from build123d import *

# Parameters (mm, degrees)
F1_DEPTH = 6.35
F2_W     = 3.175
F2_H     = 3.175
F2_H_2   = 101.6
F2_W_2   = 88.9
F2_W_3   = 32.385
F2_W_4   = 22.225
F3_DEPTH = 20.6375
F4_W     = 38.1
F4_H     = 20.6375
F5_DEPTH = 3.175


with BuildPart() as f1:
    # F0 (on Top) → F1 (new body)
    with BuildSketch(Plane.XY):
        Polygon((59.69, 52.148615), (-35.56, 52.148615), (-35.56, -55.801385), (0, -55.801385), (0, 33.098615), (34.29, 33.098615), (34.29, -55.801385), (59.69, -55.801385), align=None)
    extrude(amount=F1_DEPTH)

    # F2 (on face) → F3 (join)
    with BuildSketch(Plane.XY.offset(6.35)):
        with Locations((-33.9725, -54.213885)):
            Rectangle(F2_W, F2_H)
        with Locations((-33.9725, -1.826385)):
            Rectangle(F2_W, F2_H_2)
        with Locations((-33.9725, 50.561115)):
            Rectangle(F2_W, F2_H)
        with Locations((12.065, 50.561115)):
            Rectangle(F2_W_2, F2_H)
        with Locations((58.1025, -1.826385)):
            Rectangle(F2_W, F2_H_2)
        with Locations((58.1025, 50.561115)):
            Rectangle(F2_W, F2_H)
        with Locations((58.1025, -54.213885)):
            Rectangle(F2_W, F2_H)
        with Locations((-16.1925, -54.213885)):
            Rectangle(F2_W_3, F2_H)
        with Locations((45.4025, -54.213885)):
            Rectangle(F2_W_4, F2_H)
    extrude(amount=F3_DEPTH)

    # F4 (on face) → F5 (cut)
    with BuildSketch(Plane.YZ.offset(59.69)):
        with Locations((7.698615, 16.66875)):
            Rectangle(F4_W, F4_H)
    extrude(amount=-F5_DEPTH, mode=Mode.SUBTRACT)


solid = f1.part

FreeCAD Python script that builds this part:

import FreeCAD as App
import Part
import Sketcher

V = App.Vector
Q = App.Units.Quantity


def add_polygon(sketch, points):
    """Adds a closed chain of lines whose ends are joined by coincident constraints."""
    first, n = sketch.GeometryCount, len(points)
    for a, b in zip(points, points[1:] + points[:1]):
        sketch.addGeometry(Part.LineSegment(App.Vector(*a, 0), App.Vector(*b, 0)), False)
    for i in range(n):
        sketch.addConstraint(Sketcher.Constraint("Coincident", first + i, 2, first + (i + 1) % n, 1))

doc = App.newDocument("Part")
params = doc.addObject("Spreadsheet::Sheet", "Params")
for row, (alias, value) in enumerate([
    ("sketch1_width", "1 in"),
    ("sketch1_width2", "1.4 in"),
    ("sketch1_height", "3.5 in"),
    ("sketch1_width3", "3.75 in"),
    ("sketch1_height2", "4.25 in"),
    ("pad1_length", "0.25 in"),
    ("sketch2_width", "1 in"),
    ("sketch2_height", "4 in"),
    ("sketch2_width2", "1.4 in"),
    ("sketch2_width3", "3.5 in"),
    ("sketch2_width4", "3.75 in"),
    ("pad2_length", "0.8125 in"),
    ("sketch3_width", "1.5 in"),
    ("sketch3_height", "0.8125 in"),
    ("pocket1_length", "0.125 in"),
], start=1):
    params.set(f"A{row}", alias)
    params.set(f"B{row}", "=" + value)
    params.setAlias(f"B{row}", alias)

body = doc.addObject("PartDesign::Body", "Body")

# Sketch on XY plane
sketch1 = body.newObject("Sketcher::SketchObject", "Sketch")
sketch1.AttachmentSupport = (doc.getObject("XY_Plane"), [""])
sketch1.MapMode = "FlatFace"
add_polygon(sketch1, [(60, 52), (-36, 52), (-36, -56), (0, -56), (0, 33), (34, 33), (34, -56), (60, -56)])  # lines 0-7
sketch1.addConstraint([
    Sketcher.Constraint("Horizontal", 0),
    Sketcher.Constraint("Vertical", 1),
    Sketcher.Constraint("Horizontal", 2),
    Sketcher.Constraint("Vertical", 3),
    Sketcher.Constraint("Horizontal", 4),
    Sketcher.Constraint("Vertical", 5),
    Sketcher.Constraint("Horizontal", 6),
    Sketcher.Constraint("Vertical", 7),
    Sketcher.Constraint("PointOnObject", 2, 2, -2),
    Sketcher.Constraint("Horizontal", 2, 2, 5, 2),
    Sketcher.Constraint("DistanceX", 6, 1, 6, 2, Q("1 in")),
    Sketcher.Constraint("DistanceX", 2, 1, 2, 2, Q("1.4 in")),
    Sketcher.Constraint("DistanceY", 3, 1, 3, 2, Q("3.5 in")),
    Sketcher.Constraint("DistanceX", 0, 2, 0, 1, Q("3.75 in")),
    Sketcher.Constraint("DistanceY", 1, 2, 1, 1, Q("4.25 in")),
    Sketcher.Constraint("DistanceY", -1, 1, 0, 2, 52.148615),
])
sketch1.setExpression("Constraints[18]", "Params.sketch1_width")
sketch1.setExpression("Constraints[19]", "Params.sketch1_width2")
sketch1.setExpression("Constraints[20]", "Params.sketch1_height")
sketch1.setExpression("Constraints[21]", "Params.sketch1_width3")
sketch1.setExpression("Constraints[22]", "Params.sketch1_height2")
pad1 = body.newObject("PartDesign::Pad", "Pad")
pad1.Profile = sketch1
pad1.setExpression("Length", "Params.pad1_length")

# Sketch on XY plane
sketch2 = body.newObject("Sketcher::SketchObject", "Sketch001")
sketch2.AttachmentSupport = (doc.getObject("XY_Plane"), [""])
sketch2.MapMode = "FlatFace"
sketch2.AttachmentOffset = App.Placement(V(0, 0, 0.25 * 25.4), App.Rotation())
add_polygon(sketch2, [(-35.6, -55.8), (0, -55.8), (0, -52.6), (-32.4, -52.6), (-32.4, 49), (56.5, 49), (56.5, -52.6), (34.3, -52.6), (34.3, -55.8), (59.7, -55.8), (59.7, 52.1), (-35.6, 52.1)])  # lines 0-11
sketch2.addConstraint([
    Sketcher.Constraint("Horizontal", 0),
    Sketcher.Constraint("Vertical", 1),
    Sketcher.Constraint("Horizontal", 2),
    Sketcher.Constraint("Vertical", 3),
    Sketcher.Constraint("Horizontal", 4),
    Sketcher.Constraint("Vertical", 5),
    Sketcher.Constraint("Horizontal", 6),
    Sketcher.Constraint("Vertical", 7),
    Sketcher.Constraint("Horizontal", 8),
    Sketcher.Constraint("Vertical", 9),
    Sketcher.Constraint("Horizontal", 10),
    Sketcher.Constraint("Vertical", 11),
    Sketcher.Constraint("PointOnObject", 0, 2, -2),
    Sketcher.Constraint("Horizontal", 2, 2, 5, 2),
    Sketcher.Constraint("Horizontal", 0, 2, 7, 2),
    Sketcher.Constraint("DistanceX", 8, 1, 8, 2, Q("1 in")),
    Sketcher.Constraint("DistanceY", 3, 1, 3, 2, Q("4 in")),
    Sketcher.Constraint("DistanceX", 0, 1, 0, 2, Q("1.4 in")),
    Sketcher.Constraint("DistanceX", 4, 1, 4, 2, Q("3.5 in")),
    Sketcher.Constraint("DistanceX", 10, 2, 10, 1, Q("3.75 in")),
    Sketcher.Constraint("DistanceY", 9, 1, 9, 2, Q("4.25 in")),
    Sketcher.Constraint("DistanceX", 2, 2, 2, 1, Q("1.275 in")),
    Sketcher.Constraint("DistanceY", 1, 1, 1, 2, Q("0.125 in")),
    Sketcher.Constraint("DistanceY", 0, 2, -1, 1, 55.801385),
])
sketch2.setExpression("Constraints[27]", "Params.sketch2_width")
sketch2.setExpression("Constraints[28]", "Params.sketch2_height")
sketch2.setExpression("Constraints[29]", "Params.sketch2_width2")
sketch2.setExpression("Constraints[30]", "Params.sketch2_width3")
sketch2.setExpression("Constraints[31]", "Params.sketch2_width4")
pad2 = body.newObject("PartDesign::Pad", "Pad001")
pad2.Profile = sketch2
pad2.setExpression("Length", "Params.pad2_length")

# Sketch on YZ plane
sketch3 = body.newObject("Sketcher::SketchObject", "Sketch002")
sketch3.AttachmentSupport = (doc.getObject("YZ_Plane"), [""])
sketch3.MapMode = "FlatFace"
sketch3.AttachmentOffset = App.Placement(V(0, 0, 2.35 * 25.4), App.Rotation())
add_polygon(sketch3, [(-11, 27), (-11, 6), (27, 6), (27, 27)])  # lines 0-3
sketch3.addConstraint([
    Sketcher.Constraint("Vertical", 0),
    Sketcher.Constraint("Horizontal", 1),
    Sketcher.Constraint("Vertical", 2),
    Sketcher.Constraint("Horizontal", 3),
    Sketcher.Constraint("DistanceX", 1, 1, 1, 2, Q("1.5 in")),
    Sketcher.Constraint("DistanceY", 0, 2, 0, 1, Q("0.8125 in")),
    Sketcher.Constraint("DistanceY", -1, 1, 0, 2, Q("0.25 in")),
    Sketcher.Constraint("DistanceX", 0, 2, -1, 1, 11.351385),
])
sketch3.setExpression("Constraints[8]", "Params.sketch3_width")
sketch3.setExpression("Constraints[9]", "Params.sketch3_height")
pocket1 = body.newObject("PartDesign::Pocket", "Pocket")
pocket1.Profile = sketch3
pocket1.setExpression("Length", "Params.pocket1_length")

doc.recompute()
